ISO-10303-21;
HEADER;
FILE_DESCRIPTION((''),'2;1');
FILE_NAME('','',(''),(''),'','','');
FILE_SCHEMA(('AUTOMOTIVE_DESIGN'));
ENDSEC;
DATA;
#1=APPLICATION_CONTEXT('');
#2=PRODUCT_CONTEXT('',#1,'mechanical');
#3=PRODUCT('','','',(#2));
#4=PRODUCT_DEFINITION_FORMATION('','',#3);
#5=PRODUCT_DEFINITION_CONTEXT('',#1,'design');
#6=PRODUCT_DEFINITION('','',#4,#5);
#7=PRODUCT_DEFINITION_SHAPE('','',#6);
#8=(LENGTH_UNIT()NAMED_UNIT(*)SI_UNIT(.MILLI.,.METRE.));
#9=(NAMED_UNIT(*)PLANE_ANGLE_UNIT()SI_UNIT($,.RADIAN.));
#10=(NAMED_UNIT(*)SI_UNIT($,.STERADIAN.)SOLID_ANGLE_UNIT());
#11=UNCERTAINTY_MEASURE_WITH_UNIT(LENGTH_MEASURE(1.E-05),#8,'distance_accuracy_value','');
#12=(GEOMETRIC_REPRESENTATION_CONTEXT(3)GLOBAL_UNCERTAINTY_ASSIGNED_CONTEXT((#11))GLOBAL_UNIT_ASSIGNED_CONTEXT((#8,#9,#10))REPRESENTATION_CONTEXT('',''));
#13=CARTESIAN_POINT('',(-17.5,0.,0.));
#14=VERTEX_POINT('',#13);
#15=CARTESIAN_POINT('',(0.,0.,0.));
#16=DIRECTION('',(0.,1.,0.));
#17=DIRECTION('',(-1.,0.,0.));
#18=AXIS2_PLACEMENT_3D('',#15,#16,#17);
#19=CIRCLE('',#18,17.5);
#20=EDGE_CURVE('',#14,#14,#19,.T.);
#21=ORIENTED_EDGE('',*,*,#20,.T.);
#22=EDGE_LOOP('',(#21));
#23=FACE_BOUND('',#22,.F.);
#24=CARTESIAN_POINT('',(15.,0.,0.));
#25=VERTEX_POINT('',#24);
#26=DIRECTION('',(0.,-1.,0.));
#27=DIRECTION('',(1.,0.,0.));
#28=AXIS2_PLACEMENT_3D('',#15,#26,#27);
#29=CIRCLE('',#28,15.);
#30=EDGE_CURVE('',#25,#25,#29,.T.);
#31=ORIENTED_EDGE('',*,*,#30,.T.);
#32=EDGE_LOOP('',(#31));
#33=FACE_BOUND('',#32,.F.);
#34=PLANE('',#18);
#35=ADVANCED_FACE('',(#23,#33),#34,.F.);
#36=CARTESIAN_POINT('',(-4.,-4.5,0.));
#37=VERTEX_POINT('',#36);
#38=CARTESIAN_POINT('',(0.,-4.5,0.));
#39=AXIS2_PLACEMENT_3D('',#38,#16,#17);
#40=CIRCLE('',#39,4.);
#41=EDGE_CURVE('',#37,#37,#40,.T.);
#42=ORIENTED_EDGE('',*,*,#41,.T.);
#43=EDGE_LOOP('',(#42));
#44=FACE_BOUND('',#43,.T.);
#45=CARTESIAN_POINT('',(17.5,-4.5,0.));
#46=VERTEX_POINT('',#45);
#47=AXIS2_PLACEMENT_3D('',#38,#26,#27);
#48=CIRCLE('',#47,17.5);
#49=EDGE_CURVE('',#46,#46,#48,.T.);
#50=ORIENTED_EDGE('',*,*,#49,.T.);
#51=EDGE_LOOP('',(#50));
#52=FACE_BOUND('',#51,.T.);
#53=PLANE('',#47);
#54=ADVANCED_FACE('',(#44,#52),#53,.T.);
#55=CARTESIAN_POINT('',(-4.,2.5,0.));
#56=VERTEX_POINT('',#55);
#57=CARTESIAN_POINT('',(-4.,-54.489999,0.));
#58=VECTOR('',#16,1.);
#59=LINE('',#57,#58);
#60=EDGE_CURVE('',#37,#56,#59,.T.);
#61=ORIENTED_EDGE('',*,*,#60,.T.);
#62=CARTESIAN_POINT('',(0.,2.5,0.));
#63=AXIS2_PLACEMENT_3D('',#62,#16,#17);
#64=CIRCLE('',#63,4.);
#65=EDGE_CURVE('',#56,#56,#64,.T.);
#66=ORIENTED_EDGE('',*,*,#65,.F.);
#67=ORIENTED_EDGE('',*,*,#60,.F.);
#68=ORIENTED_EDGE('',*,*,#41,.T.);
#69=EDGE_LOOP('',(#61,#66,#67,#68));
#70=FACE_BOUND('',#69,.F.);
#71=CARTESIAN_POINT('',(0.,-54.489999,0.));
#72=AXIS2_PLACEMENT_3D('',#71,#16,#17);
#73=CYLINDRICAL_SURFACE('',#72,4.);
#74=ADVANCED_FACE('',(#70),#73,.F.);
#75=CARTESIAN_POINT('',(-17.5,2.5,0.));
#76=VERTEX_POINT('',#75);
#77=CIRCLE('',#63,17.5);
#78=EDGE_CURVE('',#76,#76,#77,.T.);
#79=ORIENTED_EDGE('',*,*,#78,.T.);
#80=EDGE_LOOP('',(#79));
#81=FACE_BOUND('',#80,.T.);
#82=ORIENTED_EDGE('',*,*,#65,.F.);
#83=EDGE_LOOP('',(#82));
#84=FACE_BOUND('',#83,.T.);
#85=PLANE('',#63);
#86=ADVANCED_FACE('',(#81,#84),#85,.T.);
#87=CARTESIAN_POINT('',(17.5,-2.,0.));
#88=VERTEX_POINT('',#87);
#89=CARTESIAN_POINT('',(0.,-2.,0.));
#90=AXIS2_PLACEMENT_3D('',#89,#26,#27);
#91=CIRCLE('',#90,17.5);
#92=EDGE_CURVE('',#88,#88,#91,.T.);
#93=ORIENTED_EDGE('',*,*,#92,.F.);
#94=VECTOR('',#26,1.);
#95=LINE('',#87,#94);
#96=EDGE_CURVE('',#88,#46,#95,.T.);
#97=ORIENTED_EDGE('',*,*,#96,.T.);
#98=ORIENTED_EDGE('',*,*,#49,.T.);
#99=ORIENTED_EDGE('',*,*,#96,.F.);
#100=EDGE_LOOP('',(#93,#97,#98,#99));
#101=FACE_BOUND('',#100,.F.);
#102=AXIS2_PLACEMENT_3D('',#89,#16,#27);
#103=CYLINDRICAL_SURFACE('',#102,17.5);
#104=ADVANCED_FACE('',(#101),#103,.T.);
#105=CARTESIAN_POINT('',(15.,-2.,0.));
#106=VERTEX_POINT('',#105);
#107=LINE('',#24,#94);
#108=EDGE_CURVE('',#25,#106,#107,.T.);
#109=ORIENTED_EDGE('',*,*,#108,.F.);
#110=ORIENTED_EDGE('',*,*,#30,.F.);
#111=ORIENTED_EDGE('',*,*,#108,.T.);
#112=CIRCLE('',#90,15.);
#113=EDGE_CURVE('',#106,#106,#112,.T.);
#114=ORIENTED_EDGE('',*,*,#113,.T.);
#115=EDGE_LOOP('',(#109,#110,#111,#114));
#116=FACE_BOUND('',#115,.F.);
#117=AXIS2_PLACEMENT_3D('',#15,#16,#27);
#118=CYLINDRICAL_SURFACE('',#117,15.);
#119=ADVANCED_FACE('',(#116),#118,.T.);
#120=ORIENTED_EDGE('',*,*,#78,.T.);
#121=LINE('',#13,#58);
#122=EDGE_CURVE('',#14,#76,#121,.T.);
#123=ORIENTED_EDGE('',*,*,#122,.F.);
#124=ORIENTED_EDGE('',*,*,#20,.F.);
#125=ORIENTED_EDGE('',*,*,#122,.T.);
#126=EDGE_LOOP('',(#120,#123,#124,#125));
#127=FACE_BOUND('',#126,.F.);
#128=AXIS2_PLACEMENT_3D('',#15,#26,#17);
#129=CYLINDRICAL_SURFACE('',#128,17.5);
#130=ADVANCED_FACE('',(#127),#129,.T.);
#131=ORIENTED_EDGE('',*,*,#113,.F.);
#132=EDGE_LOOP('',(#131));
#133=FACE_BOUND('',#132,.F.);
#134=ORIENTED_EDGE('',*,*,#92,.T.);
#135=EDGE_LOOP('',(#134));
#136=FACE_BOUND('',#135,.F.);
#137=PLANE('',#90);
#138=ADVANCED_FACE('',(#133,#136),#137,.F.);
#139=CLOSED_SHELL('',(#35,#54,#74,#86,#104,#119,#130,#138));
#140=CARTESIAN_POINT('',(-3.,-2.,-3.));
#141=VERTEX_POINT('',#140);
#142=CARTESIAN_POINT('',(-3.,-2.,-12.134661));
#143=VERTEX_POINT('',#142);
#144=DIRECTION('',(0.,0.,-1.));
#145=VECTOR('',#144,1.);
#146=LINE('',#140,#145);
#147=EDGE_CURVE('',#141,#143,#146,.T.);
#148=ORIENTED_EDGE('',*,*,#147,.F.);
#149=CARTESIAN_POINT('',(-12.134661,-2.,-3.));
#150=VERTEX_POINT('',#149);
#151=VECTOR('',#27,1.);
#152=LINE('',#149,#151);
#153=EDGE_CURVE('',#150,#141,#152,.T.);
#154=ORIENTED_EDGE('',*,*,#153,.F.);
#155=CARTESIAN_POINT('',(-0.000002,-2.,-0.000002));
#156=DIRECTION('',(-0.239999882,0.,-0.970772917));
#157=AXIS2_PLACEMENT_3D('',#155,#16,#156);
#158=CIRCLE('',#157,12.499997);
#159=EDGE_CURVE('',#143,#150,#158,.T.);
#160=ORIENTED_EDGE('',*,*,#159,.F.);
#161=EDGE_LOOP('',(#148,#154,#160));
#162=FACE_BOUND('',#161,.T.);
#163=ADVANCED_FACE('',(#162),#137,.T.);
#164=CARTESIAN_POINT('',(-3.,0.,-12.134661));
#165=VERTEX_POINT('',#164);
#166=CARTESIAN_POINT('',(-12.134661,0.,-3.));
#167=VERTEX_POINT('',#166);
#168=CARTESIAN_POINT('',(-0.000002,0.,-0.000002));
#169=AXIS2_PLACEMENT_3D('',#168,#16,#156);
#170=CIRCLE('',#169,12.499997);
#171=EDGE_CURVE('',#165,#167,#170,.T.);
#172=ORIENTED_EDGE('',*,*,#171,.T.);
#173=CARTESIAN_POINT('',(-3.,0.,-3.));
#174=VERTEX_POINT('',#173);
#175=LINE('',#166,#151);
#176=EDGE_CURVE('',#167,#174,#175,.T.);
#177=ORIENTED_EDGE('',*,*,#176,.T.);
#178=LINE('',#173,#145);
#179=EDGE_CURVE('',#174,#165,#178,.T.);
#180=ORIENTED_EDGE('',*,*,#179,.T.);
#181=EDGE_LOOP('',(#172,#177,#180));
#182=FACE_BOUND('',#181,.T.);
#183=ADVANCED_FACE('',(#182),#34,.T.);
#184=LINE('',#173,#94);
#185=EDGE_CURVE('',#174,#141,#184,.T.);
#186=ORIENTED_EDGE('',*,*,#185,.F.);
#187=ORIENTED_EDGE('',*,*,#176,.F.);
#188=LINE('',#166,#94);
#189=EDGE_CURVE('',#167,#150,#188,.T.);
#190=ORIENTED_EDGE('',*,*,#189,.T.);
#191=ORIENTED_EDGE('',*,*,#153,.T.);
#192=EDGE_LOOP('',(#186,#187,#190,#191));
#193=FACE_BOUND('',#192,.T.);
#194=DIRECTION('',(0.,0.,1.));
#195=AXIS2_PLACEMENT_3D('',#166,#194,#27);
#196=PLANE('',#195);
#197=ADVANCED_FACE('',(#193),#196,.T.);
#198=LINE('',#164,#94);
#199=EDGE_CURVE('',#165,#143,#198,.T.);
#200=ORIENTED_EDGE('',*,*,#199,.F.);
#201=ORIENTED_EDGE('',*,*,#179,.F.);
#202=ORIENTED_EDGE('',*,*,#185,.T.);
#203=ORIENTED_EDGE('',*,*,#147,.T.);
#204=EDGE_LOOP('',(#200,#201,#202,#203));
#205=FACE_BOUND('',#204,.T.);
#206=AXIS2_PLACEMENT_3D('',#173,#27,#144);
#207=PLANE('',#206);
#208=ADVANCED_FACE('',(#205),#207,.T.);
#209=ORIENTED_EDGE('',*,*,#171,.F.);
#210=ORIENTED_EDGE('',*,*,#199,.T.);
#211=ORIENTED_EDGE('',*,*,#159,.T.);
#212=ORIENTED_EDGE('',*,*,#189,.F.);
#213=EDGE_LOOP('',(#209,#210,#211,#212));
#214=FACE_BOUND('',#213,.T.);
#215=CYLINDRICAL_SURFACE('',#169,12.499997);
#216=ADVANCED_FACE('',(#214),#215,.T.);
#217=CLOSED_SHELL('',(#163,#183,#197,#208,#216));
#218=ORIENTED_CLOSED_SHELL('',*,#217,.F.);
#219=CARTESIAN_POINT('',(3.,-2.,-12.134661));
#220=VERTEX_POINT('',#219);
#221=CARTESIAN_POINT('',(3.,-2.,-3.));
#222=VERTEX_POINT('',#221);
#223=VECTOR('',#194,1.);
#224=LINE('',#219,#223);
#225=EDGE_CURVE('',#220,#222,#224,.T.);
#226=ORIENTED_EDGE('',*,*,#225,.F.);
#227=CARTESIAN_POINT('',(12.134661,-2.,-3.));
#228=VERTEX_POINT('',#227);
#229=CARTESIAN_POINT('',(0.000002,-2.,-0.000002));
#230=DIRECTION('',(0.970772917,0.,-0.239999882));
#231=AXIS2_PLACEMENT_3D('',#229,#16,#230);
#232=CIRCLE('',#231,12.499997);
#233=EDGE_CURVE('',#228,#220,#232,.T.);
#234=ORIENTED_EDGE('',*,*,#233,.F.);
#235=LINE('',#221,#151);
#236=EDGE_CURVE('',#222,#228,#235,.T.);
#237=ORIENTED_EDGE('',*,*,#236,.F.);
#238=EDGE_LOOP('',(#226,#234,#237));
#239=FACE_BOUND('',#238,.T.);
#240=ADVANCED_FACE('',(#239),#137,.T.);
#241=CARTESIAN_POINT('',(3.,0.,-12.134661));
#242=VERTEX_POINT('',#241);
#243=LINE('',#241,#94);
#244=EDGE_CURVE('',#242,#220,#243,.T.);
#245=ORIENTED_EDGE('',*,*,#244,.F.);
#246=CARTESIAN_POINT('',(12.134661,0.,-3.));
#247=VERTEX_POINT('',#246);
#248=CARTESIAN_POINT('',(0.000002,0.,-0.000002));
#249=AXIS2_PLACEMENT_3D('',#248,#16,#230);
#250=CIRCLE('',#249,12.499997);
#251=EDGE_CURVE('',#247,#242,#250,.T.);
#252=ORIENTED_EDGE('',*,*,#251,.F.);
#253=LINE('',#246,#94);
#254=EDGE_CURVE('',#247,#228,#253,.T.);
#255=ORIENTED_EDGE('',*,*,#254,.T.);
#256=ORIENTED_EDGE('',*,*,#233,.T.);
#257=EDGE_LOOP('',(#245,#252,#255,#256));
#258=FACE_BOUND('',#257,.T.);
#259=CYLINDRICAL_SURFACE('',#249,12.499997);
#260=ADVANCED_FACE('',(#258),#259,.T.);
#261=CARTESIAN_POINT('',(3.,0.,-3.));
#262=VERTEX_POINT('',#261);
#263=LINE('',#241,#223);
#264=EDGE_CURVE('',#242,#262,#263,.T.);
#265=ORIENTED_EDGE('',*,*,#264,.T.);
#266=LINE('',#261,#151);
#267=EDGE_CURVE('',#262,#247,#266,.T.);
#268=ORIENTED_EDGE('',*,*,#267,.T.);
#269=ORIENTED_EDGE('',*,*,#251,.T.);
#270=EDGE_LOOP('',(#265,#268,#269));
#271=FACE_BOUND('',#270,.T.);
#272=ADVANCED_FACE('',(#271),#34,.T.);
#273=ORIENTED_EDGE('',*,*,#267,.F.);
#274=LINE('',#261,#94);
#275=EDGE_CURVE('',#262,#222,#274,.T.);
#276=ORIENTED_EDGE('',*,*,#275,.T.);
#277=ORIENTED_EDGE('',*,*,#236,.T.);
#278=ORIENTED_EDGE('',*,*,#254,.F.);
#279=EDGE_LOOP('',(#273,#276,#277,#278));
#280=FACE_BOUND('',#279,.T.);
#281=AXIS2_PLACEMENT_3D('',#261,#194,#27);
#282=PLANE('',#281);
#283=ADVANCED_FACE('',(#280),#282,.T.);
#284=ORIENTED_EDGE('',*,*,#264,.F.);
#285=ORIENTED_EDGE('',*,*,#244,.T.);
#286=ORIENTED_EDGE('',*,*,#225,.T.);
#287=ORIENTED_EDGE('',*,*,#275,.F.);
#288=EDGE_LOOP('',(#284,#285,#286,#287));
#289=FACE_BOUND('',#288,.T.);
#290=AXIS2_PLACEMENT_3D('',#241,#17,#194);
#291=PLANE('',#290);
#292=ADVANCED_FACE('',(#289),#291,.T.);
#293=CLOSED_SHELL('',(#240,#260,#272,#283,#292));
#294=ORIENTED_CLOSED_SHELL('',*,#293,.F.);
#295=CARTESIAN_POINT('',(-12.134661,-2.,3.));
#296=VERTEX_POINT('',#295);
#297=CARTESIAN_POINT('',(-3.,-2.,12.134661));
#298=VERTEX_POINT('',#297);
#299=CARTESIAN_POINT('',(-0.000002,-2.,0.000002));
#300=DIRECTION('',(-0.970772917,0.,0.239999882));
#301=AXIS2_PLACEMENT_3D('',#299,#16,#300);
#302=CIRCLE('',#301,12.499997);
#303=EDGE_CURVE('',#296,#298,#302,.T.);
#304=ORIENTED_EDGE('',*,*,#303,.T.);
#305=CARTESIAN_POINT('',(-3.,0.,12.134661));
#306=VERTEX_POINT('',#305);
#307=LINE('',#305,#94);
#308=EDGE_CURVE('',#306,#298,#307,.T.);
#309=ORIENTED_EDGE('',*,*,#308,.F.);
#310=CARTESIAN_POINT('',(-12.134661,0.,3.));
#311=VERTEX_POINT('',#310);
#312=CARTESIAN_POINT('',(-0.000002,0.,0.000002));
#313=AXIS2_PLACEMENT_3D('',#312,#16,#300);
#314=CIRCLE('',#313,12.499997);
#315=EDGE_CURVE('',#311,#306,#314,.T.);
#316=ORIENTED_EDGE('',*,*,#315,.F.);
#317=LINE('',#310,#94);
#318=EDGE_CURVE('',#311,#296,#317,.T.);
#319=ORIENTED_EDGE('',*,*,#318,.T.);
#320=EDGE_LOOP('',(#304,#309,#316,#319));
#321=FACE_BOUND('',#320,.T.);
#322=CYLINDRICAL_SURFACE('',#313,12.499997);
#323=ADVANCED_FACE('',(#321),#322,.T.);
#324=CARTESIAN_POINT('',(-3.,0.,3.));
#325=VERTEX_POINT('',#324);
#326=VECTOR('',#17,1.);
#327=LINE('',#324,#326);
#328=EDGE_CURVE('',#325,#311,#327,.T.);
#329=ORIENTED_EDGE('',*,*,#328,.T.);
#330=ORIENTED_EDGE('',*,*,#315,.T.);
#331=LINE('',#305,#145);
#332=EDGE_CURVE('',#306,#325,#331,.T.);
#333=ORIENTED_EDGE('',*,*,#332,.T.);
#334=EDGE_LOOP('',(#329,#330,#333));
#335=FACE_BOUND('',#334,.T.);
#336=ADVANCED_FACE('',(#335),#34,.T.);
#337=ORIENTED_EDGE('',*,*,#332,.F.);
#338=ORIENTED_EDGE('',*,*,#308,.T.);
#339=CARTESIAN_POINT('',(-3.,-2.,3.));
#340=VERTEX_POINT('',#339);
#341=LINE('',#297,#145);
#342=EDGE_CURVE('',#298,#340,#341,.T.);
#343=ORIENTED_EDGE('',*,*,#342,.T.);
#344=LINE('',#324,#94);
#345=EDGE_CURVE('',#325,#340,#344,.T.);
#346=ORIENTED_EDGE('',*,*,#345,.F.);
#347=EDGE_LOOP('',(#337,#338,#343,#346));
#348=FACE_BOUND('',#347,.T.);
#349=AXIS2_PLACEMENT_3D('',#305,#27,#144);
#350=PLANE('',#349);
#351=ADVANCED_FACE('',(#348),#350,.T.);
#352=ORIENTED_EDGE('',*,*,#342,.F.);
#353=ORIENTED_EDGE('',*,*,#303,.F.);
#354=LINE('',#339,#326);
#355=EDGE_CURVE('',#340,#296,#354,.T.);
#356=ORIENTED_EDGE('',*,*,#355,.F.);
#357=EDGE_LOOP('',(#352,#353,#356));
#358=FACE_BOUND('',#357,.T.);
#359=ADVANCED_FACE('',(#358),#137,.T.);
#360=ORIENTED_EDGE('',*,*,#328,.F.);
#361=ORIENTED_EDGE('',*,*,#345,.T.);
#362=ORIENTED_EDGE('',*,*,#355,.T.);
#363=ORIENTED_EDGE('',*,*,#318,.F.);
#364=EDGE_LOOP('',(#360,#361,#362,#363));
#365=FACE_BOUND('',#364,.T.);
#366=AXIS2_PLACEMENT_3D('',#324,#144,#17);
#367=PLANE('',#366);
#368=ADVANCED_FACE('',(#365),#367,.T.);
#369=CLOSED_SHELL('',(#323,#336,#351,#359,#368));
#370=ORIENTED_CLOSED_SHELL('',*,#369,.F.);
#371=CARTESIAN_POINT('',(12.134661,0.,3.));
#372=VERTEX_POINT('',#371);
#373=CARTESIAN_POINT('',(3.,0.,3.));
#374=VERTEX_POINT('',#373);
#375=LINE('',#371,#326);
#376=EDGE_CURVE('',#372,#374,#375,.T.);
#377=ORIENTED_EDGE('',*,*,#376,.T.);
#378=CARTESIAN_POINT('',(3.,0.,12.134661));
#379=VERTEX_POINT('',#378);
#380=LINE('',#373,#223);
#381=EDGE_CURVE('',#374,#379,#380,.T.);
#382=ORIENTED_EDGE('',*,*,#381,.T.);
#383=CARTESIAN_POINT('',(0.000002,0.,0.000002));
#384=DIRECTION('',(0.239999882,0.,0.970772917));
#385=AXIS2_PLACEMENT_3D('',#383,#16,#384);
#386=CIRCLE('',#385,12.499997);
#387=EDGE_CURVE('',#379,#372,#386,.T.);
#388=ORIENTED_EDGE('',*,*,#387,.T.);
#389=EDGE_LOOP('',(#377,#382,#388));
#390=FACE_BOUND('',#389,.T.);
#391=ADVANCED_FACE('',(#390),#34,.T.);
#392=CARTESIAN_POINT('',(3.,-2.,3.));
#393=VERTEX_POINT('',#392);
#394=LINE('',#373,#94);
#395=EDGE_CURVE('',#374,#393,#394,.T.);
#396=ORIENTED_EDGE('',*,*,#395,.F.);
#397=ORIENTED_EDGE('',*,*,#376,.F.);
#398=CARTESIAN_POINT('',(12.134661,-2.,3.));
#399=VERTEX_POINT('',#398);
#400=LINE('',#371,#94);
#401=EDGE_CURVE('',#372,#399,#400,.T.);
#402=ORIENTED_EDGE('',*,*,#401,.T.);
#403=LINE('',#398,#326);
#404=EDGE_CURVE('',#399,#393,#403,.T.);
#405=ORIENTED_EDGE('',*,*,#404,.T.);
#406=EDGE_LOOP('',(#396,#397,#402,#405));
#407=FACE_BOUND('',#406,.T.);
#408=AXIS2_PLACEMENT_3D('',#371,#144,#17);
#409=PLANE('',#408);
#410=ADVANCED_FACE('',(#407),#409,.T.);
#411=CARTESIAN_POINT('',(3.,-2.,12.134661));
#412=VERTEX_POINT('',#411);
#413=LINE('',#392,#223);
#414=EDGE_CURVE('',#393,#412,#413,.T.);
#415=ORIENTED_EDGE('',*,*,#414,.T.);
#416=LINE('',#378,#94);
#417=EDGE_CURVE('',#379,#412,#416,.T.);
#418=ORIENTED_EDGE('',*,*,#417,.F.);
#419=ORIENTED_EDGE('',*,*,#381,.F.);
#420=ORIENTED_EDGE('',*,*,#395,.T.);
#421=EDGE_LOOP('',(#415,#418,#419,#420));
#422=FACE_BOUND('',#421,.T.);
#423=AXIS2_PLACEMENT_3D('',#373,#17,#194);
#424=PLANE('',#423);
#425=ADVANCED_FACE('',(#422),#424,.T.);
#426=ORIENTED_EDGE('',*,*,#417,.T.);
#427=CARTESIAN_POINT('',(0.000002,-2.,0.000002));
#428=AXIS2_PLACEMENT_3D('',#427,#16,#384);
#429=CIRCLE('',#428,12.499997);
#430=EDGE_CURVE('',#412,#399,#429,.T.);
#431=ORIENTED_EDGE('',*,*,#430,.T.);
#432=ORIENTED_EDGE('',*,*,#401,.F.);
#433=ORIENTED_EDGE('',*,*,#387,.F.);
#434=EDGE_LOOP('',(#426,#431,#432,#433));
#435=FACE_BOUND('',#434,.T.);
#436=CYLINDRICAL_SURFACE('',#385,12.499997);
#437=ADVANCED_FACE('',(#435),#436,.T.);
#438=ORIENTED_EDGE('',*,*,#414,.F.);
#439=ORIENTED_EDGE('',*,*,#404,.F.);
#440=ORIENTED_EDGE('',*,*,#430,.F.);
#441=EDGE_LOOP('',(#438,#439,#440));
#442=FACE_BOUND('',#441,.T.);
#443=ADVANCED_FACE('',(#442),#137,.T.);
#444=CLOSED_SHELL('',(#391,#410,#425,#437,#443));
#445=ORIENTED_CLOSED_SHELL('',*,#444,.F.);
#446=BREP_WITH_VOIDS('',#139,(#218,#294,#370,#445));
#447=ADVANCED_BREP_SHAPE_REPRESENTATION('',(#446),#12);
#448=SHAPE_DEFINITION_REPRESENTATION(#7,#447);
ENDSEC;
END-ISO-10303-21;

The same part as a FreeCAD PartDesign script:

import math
import FreeCAD as App
import Part
import Sketcher
from FreeCAD import Vector
Q = App.Units.Quantity

doc = App.newDocument("Part")
body = doc.addObject("PartDesign::Body", "Body")

sketch1 = body.newObject("Sketcher::SketchObject", "Sketch")
sketch1.AttachmentSupport = (doc.getObject("XZ_Plane"), [""])
sketch1.MapMode = "FlatFace"
sketch1.addGeometry(Part.Circle(Vector(0, 0, 0), Vector(0, 0, 1), 15), False)
sketch1.addGeometry(Part.LineSegment(Vector(-12, -3, 0), Vector(-3, -3, 0)), False)
sketch1.addGeometry(Part.LineSegment(Vector(-3, -3, 0), Vector(-3, -12, 0)), False)
sketch1.addGeometry(Part.ArcOfCircle(Part.Circle(Vector(0, 0, 0), Vector(0, 0, 1), 12), math.radians(-166), math.radians(-104)), False)
sketch1.addGeometry(Part.ArcOfCircle(Part.Circle(Vector(0, 0, 0), Vector(0, 0, 1), 12), math.radians(-76), math.radians(-14)), False)
sketch1.addGeometry(Part.LineSegment(Vector(3, -12, 0), Vector(3, -3, 0)), False)
sketch1.addGeometry(Part.LineSegment(Vector(3, -3, 0), Vector(12, -3, 0)), False)
sketch1.addGeometry(Part.LineSegment(Vector(-3, 3, 0), Vector(-12, 3, 0)), False)
sketch1.addGeometry(Part.ArcOfCircle(Part.Circle(Vector(0, 0, 0), Vector(0, 0, 1), 12), math.radians(104), math.radians(166)), False)
sketch1.addGeometry(Part.LineSegment(Vector(-3, 12, 0), Vector(-3, 3, 0)), False)
sketch1.addGeometry(Part.ArcOfCircle(Part.Circle(Vector(0, 0, 0), Vector(0, 0, 1), 12), math.radians(14), math.radians(76)), False)
sketch1.addGeometry(Part.LineSegment(Vector(12, 3, 0), Vector(3, 3, 0)), False)
sketch1.addGeometry(Part.LineSegment(Vector(3, 3, 0), Vector(3, 12, 0)), False)
sketch1.addConstraint(Sketcher.Constraint("Coincident", 1, 2, 2, 1))
sketch1.addConstraint(Sketcher.Constraint("Coincident", 2, 2, 3, 2))
sketch1.addConstraint(Sketcher.Constraint("Coincident", 3, 1, 1, 1))
sketch1.addConstraint(Sketcher.Constraint("Coincident", 4, 1, 5, 1))
sketch1.addConstraint(Sketcher.Constraint("Coincident", 5, 2, 6, 1))
sketch1.addConstraint(Sketcher.Constraint("Coincident", 6, 2, 4, 2))
sketch1.addConstraint(Sketcher.Constraint("Coincident", 7, 2, 8, 2))
sketch1.addConstraint(Sketcher.Constraint("Coincident", 8, 1, 9, 1))
sketch1.addConstraint(Sketcher.Constraint("Coincident", 9, 2, 7, 1))
sketch1.addConstraint(Sketcher.Constraint("Coincident", 10, 1, 11, 1))
sketch1.addConstraint(Sketcher.Constraint("Coincident", 11, 2, 12, 1))
sketch1.addConstraint(Sketcher.Constraint("Coincident", 12, 2, 10, 2))
sketch1.addConstraint(Sketcher.Constraint("Horizontal", 1))
sketch1.addConstraint(Sketcher.Constraint("Vertical", 2))
sketch1.addConstraint(Sketcher.Constraint("Vertical", 5))
sketch1.addConstraint(Sketcher.Constraint("Horizontal", 6))
sketch1.addConstraint(Sketcher.Constraint("Horizontal", 7))
sketch1.addConstraint(Sketcher.Constraint("Vertical", 9))
sketch1.addConstraint(Sketcher.Constraint("Horizontal", 11))
sketch1.addConstraint(Sketcher.Constraint("Vertical", 12))
sketch1.addConstraint(Sketcher.Constraint("Coincident", 0, 3, -1, 1))
sketch1.addConstraint(Sketcher.Constraint("Coincident", 3, 3, -1, 1))
sketch1.addConstraint(Sketcher.Constraint("Coincident", 4, 3, -1, 1))
sketch1.addConstraint(Sketcher.Constraint("Coincident", 8, 3, -1, 1))
sketch1.addConstraint(Sketcher.Constraint("Coincident", 10, 3, -1, 1))
sketch1.addConstraint(Sketcher.Constraint("Equal", 3, 4))
sketch1.addConstraint(Sketcher.Constraint("Equal", 4, 8))
sketch1.addConstraint(Sketcher.Constraint("Equal", 8, 10))
sketch1.addConstraint(Sketcher.Constraint("Symmetric", 5, 2, 9, 2, -1, 1))
sketch1.addConstraint(Sketcher.Constraint("Symmetric", 1, 2, 11, 2, -1, 1))
sketch1.addConstraint(Sketcher.Constraint("Symmetric", 1, 2, 5, 2, -2))
sketch1.addConstraint(Sketcher.Constraint("Equal", 11, 2))
sketch1.addConstraint(Sketcher.Constraint("Diameter", 0, Q("30 mm")))
sketch1.addConstraint(Sketcher.Constraint("DistanceX", 1, 2, -1, 1, Q("3 mm")))
sketch1.addConstraint(Sketcher.Constraint("Radius", 3, Q("12.499997 mm")))
pad1 = body.newObject("PartDesign::Pad", "Pad")
pad1.Profile = sketch1
pad1.Length = 2

sketch2 = body.newObject("Sketcher::SketchObject", "Sketch001")
sketch2.AttachmentSupport = (doc.getObject("XZ_Plane"), [""])
sketch2.MapMode = "FlatFace"
sketch2.addGeometry(Part.Circle(Vector(0, 0, 0), Vector(0, 0, 1), 18), False)
sketch2.addConstraint(Sketcher.Constraint("Coincident", 0, 3, -1, 1))
sketch2.addConstraint(Sketcher.Constraint("Diameter", 0, Q("35 mm")))
pad2 = body.newObject("PartDesign::Pad", "Pad001")
pad2.Profile = sketch2
pad2.Length = 2.5
pad2.Reversed = True

sketch3 = body.newObject("Sketcher::SketchObject", "Sketch002")
sketch3.AttachmentSupport = (doc.getObject("XZ_Plane"), [""])
sketch3.MapMode = "FlatFace"
sketch3.AttachmentOffset = App.Placement(Vector(0, 0, 2), App.Rotation())
sketch3.addGeometry(Part.Circle(Vector(0, 0, 0), Vector(0, 0, 1), 18), False)
sketch3.addConstraint(Sketcher.Constraint("Coincident", 0, 3, -1, 1))
sketch3.addConstraint(Sketcher.Constraint("Diameter", 0, Q("35 mm")))
pad3 = body.newObject("PartDesign::Pad", "Pad002")
pad3.Profile = sketch3
pad3.Length = 2.5

sketch4 = body.newObject("Sketcher::SketchObject", "Sketch003")
sketch4.AttachmentSupport = (doc.getObject("XZ_Plane"), [""])
sketch4.MapMode = "FlatFace"
sketch4.AttachmentOffset = App.Placement(Vector(0, 0, 4.5), App.Rotation())
sketch4.addGeometry(Part.Circle(Vector(0, 0, 0), Vector(0, 0, 1), 4), False)
sketch4.addConstraint(Sketcher.Constraint("Coincident", 0, 3, -1, 1))
sketch4.addConstraint(Sketcher.Constraint("Diameter", 0, Q("8 mm")))
doc.recompute()
hole = body.newObject("PartDesign::Hole", "Hole")
hole.Profile = sketch4
hole.ThreadType = "None"
hole.Diameter = 8
hole.DepthType = "ThroughAll"

doc.recompute()
